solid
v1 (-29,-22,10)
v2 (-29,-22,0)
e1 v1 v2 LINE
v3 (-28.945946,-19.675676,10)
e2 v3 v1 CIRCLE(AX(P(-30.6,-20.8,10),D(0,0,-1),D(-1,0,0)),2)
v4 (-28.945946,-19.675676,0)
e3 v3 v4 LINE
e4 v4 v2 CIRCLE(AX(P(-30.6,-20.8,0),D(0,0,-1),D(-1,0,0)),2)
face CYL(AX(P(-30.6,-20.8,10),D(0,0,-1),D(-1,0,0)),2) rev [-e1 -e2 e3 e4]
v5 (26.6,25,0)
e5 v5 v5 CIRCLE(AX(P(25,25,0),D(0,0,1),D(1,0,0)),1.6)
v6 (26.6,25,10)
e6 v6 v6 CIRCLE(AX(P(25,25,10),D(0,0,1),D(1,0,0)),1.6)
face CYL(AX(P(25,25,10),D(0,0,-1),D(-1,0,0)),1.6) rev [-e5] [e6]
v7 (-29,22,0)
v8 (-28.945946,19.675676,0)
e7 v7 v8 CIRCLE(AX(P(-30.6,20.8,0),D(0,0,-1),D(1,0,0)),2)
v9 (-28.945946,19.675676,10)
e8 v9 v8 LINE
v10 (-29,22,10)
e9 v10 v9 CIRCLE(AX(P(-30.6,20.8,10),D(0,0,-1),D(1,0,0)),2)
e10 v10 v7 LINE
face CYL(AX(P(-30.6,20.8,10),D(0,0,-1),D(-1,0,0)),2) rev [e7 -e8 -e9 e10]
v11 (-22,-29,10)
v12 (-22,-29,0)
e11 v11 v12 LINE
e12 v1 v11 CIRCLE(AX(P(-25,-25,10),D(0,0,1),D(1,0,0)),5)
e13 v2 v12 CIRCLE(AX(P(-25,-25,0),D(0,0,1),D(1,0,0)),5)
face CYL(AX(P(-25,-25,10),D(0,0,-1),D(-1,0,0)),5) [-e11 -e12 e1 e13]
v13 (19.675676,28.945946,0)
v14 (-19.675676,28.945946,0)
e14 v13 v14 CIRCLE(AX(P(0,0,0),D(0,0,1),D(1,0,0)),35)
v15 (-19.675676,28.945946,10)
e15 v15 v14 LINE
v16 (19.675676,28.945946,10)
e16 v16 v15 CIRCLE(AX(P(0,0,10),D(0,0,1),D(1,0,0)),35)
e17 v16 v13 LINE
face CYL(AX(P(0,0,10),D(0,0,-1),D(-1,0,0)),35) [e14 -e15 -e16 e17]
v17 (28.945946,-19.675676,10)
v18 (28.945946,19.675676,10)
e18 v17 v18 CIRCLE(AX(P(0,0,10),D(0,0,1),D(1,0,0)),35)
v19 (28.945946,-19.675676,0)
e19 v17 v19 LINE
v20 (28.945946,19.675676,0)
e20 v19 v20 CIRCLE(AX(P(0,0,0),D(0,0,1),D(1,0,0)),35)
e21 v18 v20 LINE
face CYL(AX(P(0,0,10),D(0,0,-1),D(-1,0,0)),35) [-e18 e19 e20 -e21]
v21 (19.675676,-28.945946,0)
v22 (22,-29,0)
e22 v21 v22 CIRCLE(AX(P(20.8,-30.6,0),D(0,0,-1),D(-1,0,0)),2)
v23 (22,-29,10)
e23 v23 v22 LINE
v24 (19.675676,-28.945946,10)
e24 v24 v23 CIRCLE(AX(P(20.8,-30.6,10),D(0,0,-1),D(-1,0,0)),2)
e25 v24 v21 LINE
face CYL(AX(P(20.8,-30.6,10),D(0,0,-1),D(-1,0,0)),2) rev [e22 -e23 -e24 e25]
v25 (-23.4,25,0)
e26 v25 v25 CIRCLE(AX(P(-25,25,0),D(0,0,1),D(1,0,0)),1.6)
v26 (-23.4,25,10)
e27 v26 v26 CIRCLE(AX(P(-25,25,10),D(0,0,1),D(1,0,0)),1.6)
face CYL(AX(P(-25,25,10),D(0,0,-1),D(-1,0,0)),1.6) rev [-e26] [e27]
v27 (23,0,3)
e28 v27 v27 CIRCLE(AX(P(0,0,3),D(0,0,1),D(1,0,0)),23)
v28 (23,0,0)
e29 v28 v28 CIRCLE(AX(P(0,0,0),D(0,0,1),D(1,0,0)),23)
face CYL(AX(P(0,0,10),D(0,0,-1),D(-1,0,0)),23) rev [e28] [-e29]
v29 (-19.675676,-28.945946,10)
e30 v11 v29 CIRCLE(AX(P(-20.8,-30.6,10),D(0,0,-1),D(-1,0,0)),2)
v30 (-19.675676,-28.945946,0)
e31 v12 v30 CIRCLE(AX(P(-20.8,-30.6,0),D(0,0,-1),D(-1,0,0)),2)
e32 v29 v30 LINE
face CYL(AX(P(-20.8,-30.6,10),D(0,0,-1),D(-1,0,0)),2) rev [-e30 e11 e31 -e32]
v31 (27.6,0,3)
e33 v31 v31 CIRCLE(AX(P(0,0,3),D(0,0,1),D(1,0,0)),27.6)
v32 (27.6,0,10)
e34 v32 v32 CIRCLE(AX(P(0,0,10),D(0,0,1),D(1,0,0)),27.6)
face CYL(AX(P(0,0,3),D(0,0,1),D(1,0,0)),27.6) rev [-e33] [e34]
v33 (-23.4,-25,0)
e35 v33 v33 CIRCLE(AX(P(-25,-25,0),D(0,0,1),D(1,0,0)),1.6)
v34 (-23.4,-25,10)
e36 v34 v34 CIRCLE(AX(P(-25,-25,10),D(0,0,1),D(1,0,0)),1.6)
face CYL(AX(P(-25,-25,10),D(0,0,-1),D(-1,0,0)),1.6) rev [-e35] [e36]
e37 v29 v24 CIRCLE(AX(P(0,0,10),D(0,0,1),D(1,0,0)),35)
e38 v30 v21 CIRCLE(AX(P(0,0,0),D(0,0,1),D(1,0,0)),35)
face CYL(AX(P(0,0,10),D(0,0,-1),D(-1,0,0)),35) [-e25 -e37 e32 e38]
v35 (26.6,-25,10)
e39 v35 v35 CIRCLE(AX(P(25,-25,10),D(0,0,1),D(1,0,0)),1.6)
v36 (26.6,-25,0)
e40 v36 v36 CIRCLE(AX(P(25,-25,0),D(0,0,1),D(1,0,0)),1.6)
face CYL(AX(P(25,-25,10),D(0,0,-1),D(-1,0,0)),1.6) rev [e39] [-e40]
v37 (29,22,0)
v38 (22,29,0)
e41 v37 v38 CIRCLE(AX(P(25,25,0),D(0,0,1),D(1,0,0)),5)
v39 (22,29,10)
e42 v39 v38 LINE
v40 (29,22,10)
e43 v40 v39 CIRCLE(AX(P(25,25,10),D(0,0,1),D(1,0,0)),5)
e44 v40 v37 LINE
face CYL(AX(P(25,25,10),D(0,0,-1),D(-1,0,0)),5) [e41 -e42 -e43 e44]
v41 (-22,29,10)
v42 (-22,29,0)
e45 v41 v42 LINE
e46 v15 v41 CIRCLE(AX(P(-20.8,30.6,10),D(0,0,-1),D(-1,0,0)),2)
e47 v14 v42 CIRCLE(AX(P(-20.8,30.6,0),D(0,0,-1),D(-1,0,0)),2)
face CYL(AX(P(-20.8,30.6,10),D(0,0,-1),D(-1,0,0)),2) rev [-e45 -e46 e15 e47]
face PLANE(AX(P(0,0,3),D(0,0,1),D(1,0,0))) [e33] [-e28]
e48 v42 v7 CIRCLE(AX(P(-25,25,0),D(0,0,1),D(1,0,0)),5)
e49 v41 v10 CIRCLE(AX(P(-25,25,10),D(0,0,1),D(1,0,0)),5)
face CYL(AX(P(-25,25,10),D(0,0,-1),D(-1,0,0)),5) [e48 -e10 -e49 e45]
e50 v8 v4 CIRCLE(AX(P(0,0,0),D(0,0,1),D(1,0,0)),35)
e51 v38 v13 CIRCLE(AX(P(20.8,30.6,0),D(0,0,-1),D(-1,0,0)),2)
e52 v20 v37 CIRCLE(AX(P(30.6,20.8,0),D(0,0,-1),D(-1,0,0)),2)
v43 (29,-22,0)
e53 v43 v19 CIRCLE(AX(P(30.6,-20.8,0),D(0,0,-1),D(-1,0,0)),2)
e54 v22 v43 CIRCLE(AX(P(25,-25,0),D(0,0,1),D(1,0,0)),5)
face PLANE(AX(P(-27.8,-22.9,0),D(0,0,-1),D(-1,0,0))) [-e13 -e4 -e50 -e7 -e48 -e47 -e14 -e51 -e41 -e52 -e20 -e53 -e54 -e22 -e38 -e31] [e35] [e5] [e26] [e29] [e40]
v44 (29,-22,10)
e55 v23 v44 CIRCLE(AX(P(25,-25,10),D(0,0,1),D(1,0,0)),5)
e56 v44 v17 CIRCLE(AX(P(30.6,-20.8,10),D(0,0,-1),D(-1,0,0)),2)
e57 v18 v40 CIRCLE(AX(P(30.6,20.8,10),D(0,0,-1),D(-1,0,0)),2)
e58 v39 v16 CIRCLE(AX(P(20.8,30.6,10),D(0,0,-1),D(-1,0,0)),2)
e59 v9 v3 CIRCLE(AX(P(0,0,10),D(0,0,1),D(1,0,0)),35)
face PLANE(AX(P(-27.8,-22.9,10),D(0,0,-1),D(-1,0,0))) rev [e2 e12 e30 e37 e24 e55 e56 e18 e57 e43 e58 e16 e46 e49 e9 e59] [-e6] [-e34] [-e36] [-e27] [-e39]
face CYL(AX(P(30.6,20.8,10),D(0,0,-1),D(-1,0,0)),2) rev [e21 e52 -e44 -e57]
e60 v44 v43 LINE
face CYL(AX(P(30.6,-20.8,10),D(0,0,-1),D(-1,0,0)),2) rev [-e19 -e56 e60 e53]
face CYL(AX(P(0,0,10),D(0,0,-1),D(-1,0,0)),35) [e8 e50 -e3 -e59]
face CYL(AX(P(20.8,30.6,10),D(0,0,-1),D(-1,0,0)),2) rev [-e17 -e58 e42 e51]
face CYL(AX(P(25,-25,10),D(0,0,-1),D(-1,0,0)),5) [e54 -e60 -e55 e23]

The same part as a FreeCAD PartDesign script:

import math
import FreeCAD as App
import Part
import Sketcher
Q = App.Units.Quantity

doc = App.newDocument("Part")
body = doc.addObject("PartDesign::Body", "Body")

sketch1 = body.newObject("Sketcher::SketchObject", "Sketch")
sketch1.AttachmentSupport = (doc.getObject("XY_Plane"), [""])
sketch1.MapMode = "FlatFace"
sketch1.addGeometry(Part.ArcOfCircle(Part.Circle(App.Vector(0, 0, 0), App.Vector(0, 0, 1), 35), math.radians(145.794542), math.radians(214.205458)), False)
sketch1.addGeometry(Part.ArcOfCircle(Part.Circle(App.Vector(-30.6, -20.8, 0), App.Vector(0, 0, 1), 2), math.radians(-36.869898), math.radians(34.205458)), False)
sketch1.addGeometry(Part.ArcOfCircle(Part.Circle(App.Vector(-25, -25, 0), App.Vector(0, 0, 1), 5), math.radians(143.130102), math.radians(306.869898)), False)
sketch1.addGeometry(Part.ArcOfCircle(Part.Circle(App.Vector(-20.8, -30.6, 0), App.Vector(0, 0, 1), 2), math.radians(55.794542), math.radians(126.869898)), False)
sketch1.addGeometry(Part.ArcOfCircle(Part.Circle(App.Vector(0, 0, 0), App.Vector(0, 0, 1), 35), math.radians(-124.205458), math.radians(-55.794542)), False)
sketch1.addGeometry(Part.ArcOfCircle(Part.Circle(App.Vector(20.8, -30.6, 0), App.Vector(0, 0, 1), 2), math.radians(53.130102), math.radians(124.205458)), False)
sketch1.addGeometry(Part.ArcOfCircle(Part.Circle(App.Vector(25, -25, 0), App.Vector(0, 0, 1), 5), math.radians(-126.869898), math.radians(36.869898)), False)
sketch1.addGeometry(Part.ArcOfCircle(Part.Circle(App.Vector(30.6, -20.8, 0), App.Vector(0, 0, 1), 2), math.radians(145.794542), math.radians(216.869898)), False)
sketch1.addGeometry(Part.ArcOfCircle(Part.Circle(App.Vector(0, 0, 0), App.Vector(0, 0, 1), 35), math.radians(-34.205458), math.radians(34.205458)), False)
sketch1.addGeometry(Part.ArcOfCircle(Part.Circle(App.Vector(30.6, 20.8, 0), App.Vector(0, 0, 1), 2), math.radians(143.130102), math.radians(214.205458)), False)
sketch1.addGeometry(Part.ArcOfCircle(Part.Circle(App.Vector(25, 25, 0), App.Vector(0, 0, 1), 5), math.radians(-36.869898), math.radians(126.869898)), False)
sketch1.addGeometry(Part.ArcOfCircle(Part.Circle(App.Vector(20.8, 30.6, 0), App.Vector(0, 0, 1), 2), math.radians(-124.205458), math.radians(-53.130102)), False)
sketch1.addGeometry(Part.ArcOfCircle(Part.Circle(App.Vector(0, 0, 0), App.Vector(0, 0, 1), 35), math.radians(55.794542), math.radians(124.205458)), False)
sketch1.addGeometry(Part.ArcOfCircle(Part.Circle(App.Vector(-20.8, 30.6, 0), App.Vector(0, 0, 1), 2), math.radians(-126.869898), math.radians(-55.794542)), False)
sketch1.addGeometry(Part.ArcOfCircle(Part.Circle(App.Vector(-25, 25, 0), App.Vector(0, 0, 1), 5), math.radians(53.130102), math.radians(216.869898)), False)
sketch1.addGeometry(Part.ArcOfCircle(Part.Circle(App.Vector(-30.6, 20.8, 0), App.Vector(0, 0, 1), 2), math.radians(-34.205458), math.radians(36.869898)), False)
sketch1.addGeometry(Part.Circle(App.Vector(-25, -25, 0), App.Vector(0, 0, 1), 1.6), False)
sketch1.addGeometry(Part.Circle(App.Vector(25, -25, 0), App.Vector(0, 0, 1), 1.6), False)
sketch1.addGeometry(Part.Circle(App.Vector(-25, 25, 0), App.Vector(0, 0, 1), 1.6), False)
sketch1.addGeometry(Part.Circle(App.Vector(0, 0, 0), App.Vector(0, 0, 1), 23), False)
sketch1.addGeometry(Part.Circle(App.Vector(25, 25, 0), App.Vector(0, 0, 1), 1.6), False)
sketch1.addConstraint(Sketcher.Constraint("Tangent", 0, 2, 1, 2))
sketch1.addConstraint(Sketcher.Constraint("Tangent", 1, 1, 2, 1))
sketch1.addConstraint(Sketcher.Constraint("Tangent", 2, 2, 3, 2))
sketch1.addConstraint(Sketcher.Constraint("Tangent", 3, 1, 4, 1))
sketch1.addConstraint(Sketcher.Constraint("Tangent", 4, 2, 5, 2))
sketch1.addConstraint(Sketcher.Constraint("Tangent", 5, 1, 6, 1))
sketch1.addConstraint(Sketcher.Constraint("Tangent", 6, 2, 7, 2))
sketch1.addConstraint(Sketcher.Constraint("Tangent", 7, 1, 8, 1))
sketch1.addConstraint(Sketcher.Constraint("Tangent", 8, 2, 9, 2))
sketch1.addConstraint(Sketcher.Constraint("Tangent", 9, 1, 10, 1))
sketch1.addConstraint(Sketcher.Constraint("Tangent", 10, 2, 11, 2))
sketch1.addConstraint(Sketcher.Constraint("Tangent", 11, 1, 12, 1))
sketch1.addConstraint(Sketcher.Constraint("Tangent", 12, 2, 13, 2))
sketch1.addConstraint(Sketcher.Constraint("Tangent", 13, 1, 14, 1))
sketch1.addConstraint(Sketcher.Constraint("Tangent", 14, 2, 15, 2))
sketch1.addConstraint(Sketcher.Constraint("Tangent", 15, 1, 0, 1))
sketch1.addConstraint(Sketcher.Constraint("Coincident", 0, 3, -1, 1))
sketch1.addConstraint(Sketcher.Constraint("Coincident", 4, 3, -1, 1))
sketch1.addConstraint(Sketcher.Constraint("Coincident", 8, 3, -1, 1))
sketch1.addConstraint(Sketcher.Constraint("Coincident", 12, 3, -1, 1))
sketch1.addConstraint(Sketcher.Constraint("Coincident", 19, 3, -1, 1))
sketch1.addConstraint(Sketcher.Constraint("Coincident", 16, 3, 2, 3))
sketch1.addConstraint(Sketcher.Constraint("Coincident", 17, 3, 6, 3))
sketch1.addConstraint(Sketcher.Constraint("Coincident", 18, 3, 14, 3))
sketch1.addConstraint(Sketcher.Constraint("Coincident", 20, 3, 10, 3))
sketch1.addConstraint(Sketcher.Constraint("Equal", 1, 3))
sketch1.addConstraint(Sketcher.Constraint("Equal", 0, 4))
sketch1.addConstraint(Sketcher.Constraint("Equal", 3, 5))
sketch1.addConstraint(Sketcher.Constraint("Equal", 2, 6))
sketch1.addConstraint(Sketcher.Constraint("Equal", 5, 7))
sketch1.addConstraint(Sketcher.Constraint("Equal", 4, 8))
sketch1.addConstraint(Sketcher.Constraint("Equal", 7, 9))
sketch1.addConstraint(Sketcher.Constraint("Equal", 6, 10))
sketch1.addConstraint(Sketcher.Constraint("Equal", 9, 11))
sketch1.addConstraint(Sketcher.Constraint("Equal", 8, 12))
sketch1.addConstraint(Sketcher.Constraint("Equal", 11, 13))
sketch1.addConstraint(Sketcher.Constraint("Equal", 10, 14))
sketch1.addConstraint(Sketcher.Constraint("Equal", 13, 15))
sketch1.addConstraint(Sketcher.Constraint("Equal", 16, 17))
sketch1.addConstraint(Sketcher.Constraint("Equal", 17, 18))
sketch1.addConstraint(Sketcher.Constraint("Equal", 18, 20))
sketch1.addConstraint(Sketcher.Constraint("Symmetric", 2, 3, 10, 3, -1, 1))
sketch1.addConstraint(Sketcher.Constraint("Symmetric", 6, 3, 14, 3, -1, 1))
sketch1.addConstraint(Sketcher.Constraint("Symmetric", 2, 3, 6, 3, -2))
sketch1.addConstraint(Sketcher.Constraint("Diameter", 19, Q("46 mm")))
sketch1.addConstraint(Sketcher.Constraint("Radius", 0, Q("35 mm")))
sketch1.addConstraint(Sketcher.Constraint("Radius", 1, Q("2 mm")))
sketch1.addConstraint(Sketcher.Constraint("Radius", 2, Q("5 mm")))
sketch1.addConstraint(Sketcher.Constraint("Diameter", 16, Q("3.2 mm")))
sketch1.addConstraint(Sketcher.Constraint("DistanceX", 2, 3, -1, 1, Q("25 mm")))
sketch1.addConstraint(Sketcher.Constraint("DistanceY", 2, 3, -1, 1, Q("25 mm")))
pad1 = body.newObject("PartDesign::Pad", "Pad")
pad1.Profile = sketch1
pad1.Length = 10

sketch2 = body.newObject("Sketcher::SketchObject", "Sketch001")
sketch2.AttachmentSupport = (doc.getObject("XY_Plane"), [""])
sketch2.MapMode = "FlatFace"
sketch2.AttachmentOffset = App.Placement(App.Vector(0, 0, 10), App.Rotation())
sketch2.addGeometry(Part.Circle(App.Vector(0, 0, 0), App.Vector(0, 0, 1), 27.6), False)
sketch2.addConstraint(Sketcher.Constraint("Coincident", 0, 3, -1, 1))
sketch2.addConstraint(Sketcher.Constraint("Diameter", 0, Q("55.2 mm")))
pocket1 = body.newObject("PartDesign::Pocket", "Pocket")
pocket1.Profile = sketch2
pocket1.Length = 7

doc.recompute()
